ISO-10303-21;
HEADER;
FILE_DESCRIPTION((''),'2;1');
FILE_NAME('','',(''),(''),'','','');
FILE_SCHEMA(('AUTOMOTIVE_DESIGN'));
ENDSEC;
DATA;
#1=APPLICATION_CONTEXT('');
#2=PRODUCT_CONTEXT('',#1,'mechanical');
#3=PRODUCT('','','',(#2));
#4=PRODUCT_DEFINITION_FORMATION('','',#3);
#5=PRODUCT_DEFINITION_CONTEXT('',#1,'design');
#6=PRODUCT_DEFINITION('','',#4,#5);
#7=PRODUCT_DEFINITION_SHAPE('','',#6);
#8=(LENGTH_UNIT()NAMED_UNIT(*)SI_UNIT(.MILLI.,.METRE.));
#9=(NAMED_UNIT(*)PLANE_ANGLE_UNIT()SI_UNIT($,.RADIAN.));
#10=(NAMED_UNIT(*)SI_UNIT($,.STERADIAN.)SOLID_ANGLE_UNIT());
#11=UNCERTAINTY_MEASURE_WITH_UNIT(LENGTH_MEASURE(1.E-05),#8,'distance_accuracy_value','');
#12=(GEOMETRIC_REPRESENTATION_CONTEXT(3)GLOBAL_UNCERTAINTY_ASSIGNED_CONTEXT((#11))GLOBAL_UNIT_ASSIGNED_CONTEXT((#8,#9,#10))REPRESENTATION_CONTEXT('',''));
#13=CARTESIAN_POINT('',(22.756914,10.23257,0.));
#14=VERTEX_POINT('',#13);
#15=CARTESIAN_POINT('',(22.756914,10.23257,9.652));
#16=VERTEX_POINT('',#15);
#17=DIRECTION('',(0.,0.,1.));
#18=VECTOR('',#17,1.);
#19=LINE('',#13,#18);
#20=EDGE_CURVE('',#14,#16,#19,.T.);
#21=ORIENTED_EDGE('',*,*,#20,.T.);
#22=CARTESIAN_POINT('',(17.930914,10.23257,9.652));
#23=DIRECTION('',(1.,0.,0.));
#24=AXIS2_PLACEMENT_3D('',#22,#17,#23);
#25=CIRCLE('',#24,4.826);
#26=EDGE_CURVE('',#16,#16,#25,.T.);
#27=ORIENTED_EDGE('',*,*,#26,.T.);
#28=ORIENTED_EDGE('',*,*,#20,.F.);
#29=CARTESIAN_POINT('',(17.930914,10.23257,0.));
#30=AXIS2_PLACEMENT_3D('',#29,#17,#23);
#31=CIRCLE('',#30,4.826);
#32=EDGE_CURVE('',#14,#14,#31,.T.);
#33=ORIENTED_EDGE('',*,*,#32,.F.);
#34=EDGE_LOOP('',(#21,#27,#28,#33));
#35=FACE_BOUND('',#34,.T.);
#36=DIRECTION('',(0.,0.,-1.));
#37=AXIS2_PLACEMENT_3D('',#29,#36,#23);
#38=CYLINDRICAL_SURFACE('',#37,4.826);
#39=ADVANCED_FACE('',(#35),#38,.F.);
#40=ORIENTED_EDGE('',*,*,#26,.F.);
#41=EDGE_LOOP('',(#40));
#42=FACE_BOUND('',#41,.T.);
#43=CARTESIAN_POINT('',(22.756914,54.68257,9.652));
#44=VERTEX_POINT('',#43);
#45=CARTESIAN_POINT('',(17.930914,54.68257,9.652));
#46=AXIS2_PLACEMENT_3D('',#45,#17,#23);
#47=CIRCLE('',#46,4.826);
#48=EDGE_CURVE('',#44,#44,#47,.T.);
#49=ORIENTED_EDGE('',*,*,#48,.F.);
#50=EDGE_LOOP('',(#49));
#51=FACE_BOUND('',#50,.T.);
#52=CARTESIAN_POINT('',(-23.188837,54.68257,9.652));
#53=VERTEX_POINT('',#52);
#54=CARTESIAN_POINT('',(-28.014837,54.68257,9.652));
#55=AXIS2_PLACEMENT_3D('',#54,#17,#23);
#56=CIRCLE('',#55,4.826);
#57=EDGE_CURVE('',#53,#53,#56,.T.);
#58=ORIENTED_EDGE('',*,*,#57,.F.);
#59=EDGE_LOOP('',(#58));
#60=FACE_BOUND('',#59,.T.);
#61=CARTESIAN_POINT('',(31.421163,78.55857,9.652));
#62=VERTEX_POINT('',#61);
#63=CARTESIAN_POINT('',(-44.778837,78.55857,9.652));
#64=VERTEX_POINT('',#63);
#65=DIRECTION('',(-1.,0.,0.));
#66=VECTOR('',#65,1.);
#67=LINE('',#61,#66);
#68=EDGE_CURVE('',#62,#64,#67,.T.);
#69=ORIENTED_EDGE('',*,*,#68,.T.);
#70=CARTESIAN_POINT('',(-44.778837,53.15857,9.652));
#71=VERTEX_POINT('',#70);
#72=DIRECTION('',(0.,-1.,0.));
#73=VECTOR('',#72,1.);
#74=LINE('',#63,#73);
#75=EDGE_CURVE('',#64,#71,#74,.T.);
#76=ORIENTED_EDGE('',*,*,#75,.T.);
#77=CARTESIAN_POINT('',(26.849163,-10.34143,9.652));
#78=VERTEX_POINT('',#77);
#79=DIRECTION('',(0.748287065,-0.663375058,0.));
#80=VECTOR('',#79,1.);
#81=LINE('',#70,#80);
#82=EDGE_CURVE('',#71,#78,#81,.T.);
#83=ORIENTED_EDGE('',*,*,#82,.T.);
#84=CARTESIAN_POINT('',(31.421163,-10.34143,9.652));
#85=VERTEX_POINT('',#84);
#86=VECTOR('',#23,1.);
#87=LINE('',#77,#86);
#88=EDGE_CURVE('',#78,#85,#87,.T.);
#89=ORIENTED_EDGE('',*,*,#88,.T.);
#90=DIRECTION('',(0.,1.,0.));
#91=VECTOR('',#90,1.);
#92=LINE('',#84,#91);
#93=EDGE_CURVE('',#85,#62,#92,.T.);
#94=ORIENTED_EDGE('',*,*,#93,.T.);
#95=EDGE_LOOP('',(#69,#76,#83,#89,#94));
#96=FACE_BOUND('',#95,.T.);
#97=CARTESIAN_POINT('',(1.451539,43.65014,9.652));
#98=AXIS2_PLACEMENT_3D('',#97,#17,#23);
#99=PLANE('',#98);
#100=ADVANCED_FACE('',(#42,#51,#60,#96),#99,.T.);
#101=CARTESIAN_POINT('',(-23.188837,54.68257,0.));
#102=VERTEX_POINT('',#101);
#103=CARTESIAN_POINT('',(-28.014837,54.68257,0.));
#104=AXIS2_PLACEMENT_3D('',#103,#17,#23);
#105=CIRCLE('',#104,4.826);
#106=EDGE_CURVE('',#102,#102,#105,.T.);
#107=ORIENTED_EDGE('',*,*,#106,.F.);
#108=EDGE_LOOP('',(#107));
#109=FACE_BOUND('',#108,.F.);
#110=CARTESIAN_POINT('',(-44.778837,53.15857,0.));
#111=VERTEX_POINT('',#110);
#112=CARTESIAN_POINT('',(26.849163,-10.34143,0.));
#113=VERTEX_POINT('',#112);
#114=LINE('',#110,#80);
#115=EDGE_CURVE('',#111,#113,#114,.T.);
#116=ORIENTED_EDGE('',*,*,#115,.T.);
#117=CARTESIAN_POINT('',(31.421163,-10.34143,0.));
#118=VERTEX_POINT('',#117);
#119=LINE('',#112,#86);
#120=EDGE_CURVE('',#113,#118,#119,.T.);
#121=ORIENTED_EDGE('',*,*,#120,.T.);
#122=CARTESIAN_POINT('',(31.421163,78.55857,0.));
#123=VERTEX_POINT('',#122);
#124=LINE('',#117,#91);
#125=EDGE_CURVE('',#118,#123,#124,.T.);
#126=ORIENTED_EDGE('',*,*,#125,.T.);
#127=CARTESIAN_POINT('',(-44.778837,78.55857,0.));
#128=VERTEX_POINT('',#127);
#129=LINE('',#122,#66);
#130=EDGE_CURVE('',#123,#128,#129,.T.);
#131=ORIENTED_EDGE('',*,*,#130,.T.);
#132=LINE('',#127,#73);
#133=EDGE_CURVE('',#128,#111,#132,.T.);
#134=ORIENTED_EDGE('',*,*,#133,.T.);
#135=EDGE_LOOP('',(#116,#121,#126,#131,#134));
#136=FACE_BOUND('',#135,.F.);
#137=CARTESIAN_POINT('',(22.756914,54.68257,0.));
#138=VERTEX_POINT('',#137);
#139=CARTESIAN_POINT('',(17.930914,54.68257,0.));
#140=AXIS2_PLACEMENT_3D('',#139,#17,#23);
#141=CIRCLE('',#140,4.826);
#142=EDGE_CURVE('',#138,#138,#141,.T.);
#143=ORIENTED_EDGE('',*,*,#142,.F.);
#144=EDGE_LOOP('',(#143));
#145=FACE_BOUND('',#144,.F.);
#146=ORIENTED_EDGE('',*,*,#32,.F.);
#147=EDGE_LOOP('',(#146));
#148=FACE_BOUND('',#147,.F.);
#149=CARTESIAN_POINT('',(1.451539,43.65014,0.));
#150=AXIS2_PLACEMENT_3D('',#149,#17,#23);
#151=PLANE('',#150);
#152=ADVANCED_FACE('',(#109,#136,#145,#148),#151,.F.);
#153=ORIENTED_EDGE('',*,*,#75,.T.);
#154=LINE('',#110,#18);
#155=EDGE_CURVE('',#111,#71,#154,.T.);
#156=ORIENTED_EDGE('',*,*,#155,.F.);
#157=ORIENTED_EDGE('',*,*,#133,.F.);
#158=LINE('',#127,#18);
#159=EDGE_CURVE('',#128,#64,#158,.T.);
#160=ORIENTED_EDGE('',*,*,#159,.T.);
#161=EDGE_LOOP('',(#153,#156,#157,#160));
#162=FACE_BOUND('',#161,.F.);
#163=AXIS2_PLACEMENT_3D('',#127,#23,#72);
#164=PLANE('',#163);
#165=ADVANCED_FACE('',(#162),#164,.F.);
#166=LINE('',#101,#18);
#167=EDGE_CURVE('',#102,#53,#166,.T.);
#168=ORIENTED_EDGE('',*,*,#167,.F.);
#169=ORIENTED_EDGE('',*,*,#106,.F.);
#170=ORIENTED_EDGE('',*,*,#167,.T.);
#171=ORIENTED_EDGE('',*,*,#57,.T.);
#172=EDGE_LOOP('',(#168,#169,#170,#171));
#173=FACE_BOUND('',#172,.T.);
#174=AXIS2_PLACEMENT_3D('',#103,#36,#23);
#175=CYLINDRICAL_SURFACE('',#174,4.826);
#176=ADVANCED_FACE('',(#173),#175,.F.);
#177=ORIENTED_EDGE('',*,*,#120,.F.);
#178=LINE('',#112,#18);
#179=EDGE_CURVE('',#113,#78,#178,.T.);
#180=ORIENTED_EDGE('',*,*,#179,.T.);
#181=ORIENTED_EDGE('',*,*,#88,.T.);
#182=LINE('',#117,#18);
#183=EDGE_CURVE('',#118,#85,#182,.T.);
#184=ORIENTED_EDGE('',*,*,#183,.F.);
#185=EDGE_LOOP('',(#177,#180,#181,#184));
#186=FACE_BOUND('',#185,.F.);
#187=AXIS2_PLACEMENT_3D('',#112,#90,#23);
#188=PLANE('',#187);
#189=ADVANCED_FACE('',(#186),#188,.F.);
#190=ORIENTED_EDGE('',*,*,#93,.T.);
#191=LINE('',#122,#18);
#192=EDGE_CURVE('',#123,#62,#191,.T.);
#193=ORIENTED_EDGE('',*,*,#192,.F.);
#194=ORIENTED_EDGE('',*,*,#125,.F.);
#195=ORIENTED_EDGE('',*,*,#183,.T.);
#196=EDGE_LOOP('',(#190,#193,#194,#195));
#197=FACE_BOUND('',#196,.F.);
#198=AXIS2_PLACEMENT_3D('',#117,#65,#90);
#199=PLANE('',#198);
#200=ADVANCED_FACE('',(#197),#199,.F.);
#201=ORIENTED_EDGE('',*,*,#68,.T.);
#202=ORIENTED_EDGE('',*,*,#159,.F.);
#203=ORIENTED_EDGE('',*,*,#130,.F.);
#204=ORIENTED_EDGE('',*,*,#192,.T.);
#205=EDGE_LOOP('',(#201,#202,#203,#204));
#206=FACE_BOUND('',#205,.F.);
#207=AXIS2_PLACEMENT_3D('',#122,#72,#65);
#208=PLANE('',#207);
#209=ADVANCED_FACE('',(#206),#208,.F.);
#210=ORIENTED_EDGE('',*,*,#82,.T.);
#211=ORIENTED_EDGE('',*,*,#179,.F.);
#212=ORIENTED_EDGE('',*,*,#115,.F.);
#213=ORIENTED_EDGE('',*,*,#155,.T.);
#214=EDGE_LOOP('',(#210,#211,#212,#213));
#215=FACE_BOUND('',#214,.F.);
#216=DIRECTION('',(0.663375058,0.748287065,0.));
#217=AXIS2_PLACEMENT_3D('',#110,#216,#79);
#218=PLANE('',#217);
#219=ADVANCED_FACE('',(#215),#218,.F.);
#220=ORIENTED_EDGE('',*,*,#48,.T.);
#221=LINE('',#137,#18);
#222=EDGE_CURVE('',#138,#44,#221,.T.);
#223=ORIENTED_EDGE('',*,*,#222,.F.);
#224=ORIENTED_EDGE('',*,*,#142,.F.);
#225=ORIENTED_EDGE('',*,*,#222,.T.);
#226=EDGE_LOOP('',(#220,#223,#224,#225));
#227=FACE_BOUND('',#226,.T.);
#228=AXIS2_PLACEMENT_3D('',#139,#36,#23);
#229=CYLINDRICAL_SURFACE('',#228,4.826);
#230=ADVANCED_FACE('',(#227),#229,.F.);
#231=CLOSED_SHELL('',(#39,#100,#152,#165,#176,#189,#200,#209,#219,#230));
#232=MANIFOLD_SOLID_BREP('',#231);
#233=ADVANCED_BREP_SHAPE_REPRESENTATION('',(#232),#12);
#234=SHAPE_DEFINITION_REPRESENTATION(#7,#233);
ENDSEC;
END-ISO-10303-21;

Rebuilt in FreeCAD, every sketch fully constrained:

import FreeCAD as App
import Part
import Sketcher

V = App.Vector
Q = App.Units.Quantity


def add_polygon(sketch, points):
    """Adds a closed chain of lines whose ends are joined by coincident constraints."""
    first, n = sketch.GeometryCount, len(points)
    for a, b in zip(points, points[1:] + points[:1]):
        sketch.addGeometry(Part.LineSegment(App.Vector(*a, 0), App.Vector(*b, 0)), False)
    for i in range(n):
        sketch.addConstraint(Sketcher.Constraint("Coincident", first + i, 2, first + (i + 1) % n, 1))

doc = App.newDocument("Part")
body = doc.addObject("PartDesign::Body", "Body")

# Sketch on XY plane
sketch1 = body.newObject("Sketcher::SketchObject", "Sketch")
sketch1.AttachmentSupport = (doc.getObject("XY_Plane"), [""])
sketch1.MapMode = "FlatFace"
add_polygon(sketch1, [(-44.8, 53.2), (26.8, -10.3), (31.4, -10.3), (31.4, 78.6), (-44.8, 78.6)])  # lines 0-4
sketch1.addGeometry(Part.Circle(V(17.9, 10.2, 0), V(0, 0, 1), 4.8), False)  # 5
sketch1.addGeometry(Part.Circle(V(-28, 54.7, 0), V(0, 0, 1), 4.8), False)  # 6
sketch1.addGeometry(Part.Circle(V(17.9, 54.7, 0), V(0, 0, 1), 4.8), False)  # 7
sketch1.addConstraint(Sketcher.Constraint("Horizontal", 1))
sketch1.addConstraint(Sketcher.Constraint("Vertical", 2))
sketch1.addConstraint(Sketcher.Constraint("Horizontal", 3))
sketch1.addConstraint(Sketcher.Constraint("Vertical", 4))
sketch1.addConstraint(Sketcher.Constraint("Equal", 5, 6))
sketch1.addConstraint(Sketcher.Constraint("Equal", 6, 7))
sketch1.addConstraint(Sketcher.Constraint("Horizontal", 6, 3, 7, 3))
sketch1.addConstraint(Sketcher.Constraint("Vertical", 5, 3, 7, 3))
sketch1.addConstraint(Sketcher.Constraint("Diameter", 5, Q("0.38 in")))
sketch1.addConstraint(Sketcher.Constraint("DistanceX", 3, 2, 3, 1, Q("3 in")))
sketch1.addConstraint(Sketcher.Constraint("DistanceY", 4, 2, 4, 1, Q("1 in")))
sketch1.addConstraint(Sketcher.Constraint("DistanceY", 2, 1, 2, 2, Q("3.5 in")))
sketch1.addConstraint(Sketcher.Constraint("DistanceX", 1, 1, 1, 2, Q("0.18 in")))
sketch1.addConstraint(Sketcher.Constraint("DistanceY", 5, 3, 6, 3, Q("1.75 in")))
sketch1.addConstraint(Sketcher.Constraint("DistanceY", 0, 2, 5, 3, Q("0.81 in")))
sketch1.addConstraint(Sketcher.Constraint("DistanceX", 6, 3, 0, 2, Q("2.16 in")))
sketch1.addConstraint(Sketcher.Constraint("DistanceY", -1, 1, 5, 3, Q("10.23257 mm")))
sketch1.addConstraint(Sketcher.Constraint("DistanceX", 6, 3, 5, 3, Q("45.945751 mm")))
sketch1.addConstraint(Sketcher.Constraint("DistanceX", -1, 1, 5, 3, Q("17.930914 mm")))
pad1 = body.newObject("PartDesign::Pad", "Pad")
pad1.Profile = sketch1
pad1.Length = Q("0.38 in")

doc.recompute()
